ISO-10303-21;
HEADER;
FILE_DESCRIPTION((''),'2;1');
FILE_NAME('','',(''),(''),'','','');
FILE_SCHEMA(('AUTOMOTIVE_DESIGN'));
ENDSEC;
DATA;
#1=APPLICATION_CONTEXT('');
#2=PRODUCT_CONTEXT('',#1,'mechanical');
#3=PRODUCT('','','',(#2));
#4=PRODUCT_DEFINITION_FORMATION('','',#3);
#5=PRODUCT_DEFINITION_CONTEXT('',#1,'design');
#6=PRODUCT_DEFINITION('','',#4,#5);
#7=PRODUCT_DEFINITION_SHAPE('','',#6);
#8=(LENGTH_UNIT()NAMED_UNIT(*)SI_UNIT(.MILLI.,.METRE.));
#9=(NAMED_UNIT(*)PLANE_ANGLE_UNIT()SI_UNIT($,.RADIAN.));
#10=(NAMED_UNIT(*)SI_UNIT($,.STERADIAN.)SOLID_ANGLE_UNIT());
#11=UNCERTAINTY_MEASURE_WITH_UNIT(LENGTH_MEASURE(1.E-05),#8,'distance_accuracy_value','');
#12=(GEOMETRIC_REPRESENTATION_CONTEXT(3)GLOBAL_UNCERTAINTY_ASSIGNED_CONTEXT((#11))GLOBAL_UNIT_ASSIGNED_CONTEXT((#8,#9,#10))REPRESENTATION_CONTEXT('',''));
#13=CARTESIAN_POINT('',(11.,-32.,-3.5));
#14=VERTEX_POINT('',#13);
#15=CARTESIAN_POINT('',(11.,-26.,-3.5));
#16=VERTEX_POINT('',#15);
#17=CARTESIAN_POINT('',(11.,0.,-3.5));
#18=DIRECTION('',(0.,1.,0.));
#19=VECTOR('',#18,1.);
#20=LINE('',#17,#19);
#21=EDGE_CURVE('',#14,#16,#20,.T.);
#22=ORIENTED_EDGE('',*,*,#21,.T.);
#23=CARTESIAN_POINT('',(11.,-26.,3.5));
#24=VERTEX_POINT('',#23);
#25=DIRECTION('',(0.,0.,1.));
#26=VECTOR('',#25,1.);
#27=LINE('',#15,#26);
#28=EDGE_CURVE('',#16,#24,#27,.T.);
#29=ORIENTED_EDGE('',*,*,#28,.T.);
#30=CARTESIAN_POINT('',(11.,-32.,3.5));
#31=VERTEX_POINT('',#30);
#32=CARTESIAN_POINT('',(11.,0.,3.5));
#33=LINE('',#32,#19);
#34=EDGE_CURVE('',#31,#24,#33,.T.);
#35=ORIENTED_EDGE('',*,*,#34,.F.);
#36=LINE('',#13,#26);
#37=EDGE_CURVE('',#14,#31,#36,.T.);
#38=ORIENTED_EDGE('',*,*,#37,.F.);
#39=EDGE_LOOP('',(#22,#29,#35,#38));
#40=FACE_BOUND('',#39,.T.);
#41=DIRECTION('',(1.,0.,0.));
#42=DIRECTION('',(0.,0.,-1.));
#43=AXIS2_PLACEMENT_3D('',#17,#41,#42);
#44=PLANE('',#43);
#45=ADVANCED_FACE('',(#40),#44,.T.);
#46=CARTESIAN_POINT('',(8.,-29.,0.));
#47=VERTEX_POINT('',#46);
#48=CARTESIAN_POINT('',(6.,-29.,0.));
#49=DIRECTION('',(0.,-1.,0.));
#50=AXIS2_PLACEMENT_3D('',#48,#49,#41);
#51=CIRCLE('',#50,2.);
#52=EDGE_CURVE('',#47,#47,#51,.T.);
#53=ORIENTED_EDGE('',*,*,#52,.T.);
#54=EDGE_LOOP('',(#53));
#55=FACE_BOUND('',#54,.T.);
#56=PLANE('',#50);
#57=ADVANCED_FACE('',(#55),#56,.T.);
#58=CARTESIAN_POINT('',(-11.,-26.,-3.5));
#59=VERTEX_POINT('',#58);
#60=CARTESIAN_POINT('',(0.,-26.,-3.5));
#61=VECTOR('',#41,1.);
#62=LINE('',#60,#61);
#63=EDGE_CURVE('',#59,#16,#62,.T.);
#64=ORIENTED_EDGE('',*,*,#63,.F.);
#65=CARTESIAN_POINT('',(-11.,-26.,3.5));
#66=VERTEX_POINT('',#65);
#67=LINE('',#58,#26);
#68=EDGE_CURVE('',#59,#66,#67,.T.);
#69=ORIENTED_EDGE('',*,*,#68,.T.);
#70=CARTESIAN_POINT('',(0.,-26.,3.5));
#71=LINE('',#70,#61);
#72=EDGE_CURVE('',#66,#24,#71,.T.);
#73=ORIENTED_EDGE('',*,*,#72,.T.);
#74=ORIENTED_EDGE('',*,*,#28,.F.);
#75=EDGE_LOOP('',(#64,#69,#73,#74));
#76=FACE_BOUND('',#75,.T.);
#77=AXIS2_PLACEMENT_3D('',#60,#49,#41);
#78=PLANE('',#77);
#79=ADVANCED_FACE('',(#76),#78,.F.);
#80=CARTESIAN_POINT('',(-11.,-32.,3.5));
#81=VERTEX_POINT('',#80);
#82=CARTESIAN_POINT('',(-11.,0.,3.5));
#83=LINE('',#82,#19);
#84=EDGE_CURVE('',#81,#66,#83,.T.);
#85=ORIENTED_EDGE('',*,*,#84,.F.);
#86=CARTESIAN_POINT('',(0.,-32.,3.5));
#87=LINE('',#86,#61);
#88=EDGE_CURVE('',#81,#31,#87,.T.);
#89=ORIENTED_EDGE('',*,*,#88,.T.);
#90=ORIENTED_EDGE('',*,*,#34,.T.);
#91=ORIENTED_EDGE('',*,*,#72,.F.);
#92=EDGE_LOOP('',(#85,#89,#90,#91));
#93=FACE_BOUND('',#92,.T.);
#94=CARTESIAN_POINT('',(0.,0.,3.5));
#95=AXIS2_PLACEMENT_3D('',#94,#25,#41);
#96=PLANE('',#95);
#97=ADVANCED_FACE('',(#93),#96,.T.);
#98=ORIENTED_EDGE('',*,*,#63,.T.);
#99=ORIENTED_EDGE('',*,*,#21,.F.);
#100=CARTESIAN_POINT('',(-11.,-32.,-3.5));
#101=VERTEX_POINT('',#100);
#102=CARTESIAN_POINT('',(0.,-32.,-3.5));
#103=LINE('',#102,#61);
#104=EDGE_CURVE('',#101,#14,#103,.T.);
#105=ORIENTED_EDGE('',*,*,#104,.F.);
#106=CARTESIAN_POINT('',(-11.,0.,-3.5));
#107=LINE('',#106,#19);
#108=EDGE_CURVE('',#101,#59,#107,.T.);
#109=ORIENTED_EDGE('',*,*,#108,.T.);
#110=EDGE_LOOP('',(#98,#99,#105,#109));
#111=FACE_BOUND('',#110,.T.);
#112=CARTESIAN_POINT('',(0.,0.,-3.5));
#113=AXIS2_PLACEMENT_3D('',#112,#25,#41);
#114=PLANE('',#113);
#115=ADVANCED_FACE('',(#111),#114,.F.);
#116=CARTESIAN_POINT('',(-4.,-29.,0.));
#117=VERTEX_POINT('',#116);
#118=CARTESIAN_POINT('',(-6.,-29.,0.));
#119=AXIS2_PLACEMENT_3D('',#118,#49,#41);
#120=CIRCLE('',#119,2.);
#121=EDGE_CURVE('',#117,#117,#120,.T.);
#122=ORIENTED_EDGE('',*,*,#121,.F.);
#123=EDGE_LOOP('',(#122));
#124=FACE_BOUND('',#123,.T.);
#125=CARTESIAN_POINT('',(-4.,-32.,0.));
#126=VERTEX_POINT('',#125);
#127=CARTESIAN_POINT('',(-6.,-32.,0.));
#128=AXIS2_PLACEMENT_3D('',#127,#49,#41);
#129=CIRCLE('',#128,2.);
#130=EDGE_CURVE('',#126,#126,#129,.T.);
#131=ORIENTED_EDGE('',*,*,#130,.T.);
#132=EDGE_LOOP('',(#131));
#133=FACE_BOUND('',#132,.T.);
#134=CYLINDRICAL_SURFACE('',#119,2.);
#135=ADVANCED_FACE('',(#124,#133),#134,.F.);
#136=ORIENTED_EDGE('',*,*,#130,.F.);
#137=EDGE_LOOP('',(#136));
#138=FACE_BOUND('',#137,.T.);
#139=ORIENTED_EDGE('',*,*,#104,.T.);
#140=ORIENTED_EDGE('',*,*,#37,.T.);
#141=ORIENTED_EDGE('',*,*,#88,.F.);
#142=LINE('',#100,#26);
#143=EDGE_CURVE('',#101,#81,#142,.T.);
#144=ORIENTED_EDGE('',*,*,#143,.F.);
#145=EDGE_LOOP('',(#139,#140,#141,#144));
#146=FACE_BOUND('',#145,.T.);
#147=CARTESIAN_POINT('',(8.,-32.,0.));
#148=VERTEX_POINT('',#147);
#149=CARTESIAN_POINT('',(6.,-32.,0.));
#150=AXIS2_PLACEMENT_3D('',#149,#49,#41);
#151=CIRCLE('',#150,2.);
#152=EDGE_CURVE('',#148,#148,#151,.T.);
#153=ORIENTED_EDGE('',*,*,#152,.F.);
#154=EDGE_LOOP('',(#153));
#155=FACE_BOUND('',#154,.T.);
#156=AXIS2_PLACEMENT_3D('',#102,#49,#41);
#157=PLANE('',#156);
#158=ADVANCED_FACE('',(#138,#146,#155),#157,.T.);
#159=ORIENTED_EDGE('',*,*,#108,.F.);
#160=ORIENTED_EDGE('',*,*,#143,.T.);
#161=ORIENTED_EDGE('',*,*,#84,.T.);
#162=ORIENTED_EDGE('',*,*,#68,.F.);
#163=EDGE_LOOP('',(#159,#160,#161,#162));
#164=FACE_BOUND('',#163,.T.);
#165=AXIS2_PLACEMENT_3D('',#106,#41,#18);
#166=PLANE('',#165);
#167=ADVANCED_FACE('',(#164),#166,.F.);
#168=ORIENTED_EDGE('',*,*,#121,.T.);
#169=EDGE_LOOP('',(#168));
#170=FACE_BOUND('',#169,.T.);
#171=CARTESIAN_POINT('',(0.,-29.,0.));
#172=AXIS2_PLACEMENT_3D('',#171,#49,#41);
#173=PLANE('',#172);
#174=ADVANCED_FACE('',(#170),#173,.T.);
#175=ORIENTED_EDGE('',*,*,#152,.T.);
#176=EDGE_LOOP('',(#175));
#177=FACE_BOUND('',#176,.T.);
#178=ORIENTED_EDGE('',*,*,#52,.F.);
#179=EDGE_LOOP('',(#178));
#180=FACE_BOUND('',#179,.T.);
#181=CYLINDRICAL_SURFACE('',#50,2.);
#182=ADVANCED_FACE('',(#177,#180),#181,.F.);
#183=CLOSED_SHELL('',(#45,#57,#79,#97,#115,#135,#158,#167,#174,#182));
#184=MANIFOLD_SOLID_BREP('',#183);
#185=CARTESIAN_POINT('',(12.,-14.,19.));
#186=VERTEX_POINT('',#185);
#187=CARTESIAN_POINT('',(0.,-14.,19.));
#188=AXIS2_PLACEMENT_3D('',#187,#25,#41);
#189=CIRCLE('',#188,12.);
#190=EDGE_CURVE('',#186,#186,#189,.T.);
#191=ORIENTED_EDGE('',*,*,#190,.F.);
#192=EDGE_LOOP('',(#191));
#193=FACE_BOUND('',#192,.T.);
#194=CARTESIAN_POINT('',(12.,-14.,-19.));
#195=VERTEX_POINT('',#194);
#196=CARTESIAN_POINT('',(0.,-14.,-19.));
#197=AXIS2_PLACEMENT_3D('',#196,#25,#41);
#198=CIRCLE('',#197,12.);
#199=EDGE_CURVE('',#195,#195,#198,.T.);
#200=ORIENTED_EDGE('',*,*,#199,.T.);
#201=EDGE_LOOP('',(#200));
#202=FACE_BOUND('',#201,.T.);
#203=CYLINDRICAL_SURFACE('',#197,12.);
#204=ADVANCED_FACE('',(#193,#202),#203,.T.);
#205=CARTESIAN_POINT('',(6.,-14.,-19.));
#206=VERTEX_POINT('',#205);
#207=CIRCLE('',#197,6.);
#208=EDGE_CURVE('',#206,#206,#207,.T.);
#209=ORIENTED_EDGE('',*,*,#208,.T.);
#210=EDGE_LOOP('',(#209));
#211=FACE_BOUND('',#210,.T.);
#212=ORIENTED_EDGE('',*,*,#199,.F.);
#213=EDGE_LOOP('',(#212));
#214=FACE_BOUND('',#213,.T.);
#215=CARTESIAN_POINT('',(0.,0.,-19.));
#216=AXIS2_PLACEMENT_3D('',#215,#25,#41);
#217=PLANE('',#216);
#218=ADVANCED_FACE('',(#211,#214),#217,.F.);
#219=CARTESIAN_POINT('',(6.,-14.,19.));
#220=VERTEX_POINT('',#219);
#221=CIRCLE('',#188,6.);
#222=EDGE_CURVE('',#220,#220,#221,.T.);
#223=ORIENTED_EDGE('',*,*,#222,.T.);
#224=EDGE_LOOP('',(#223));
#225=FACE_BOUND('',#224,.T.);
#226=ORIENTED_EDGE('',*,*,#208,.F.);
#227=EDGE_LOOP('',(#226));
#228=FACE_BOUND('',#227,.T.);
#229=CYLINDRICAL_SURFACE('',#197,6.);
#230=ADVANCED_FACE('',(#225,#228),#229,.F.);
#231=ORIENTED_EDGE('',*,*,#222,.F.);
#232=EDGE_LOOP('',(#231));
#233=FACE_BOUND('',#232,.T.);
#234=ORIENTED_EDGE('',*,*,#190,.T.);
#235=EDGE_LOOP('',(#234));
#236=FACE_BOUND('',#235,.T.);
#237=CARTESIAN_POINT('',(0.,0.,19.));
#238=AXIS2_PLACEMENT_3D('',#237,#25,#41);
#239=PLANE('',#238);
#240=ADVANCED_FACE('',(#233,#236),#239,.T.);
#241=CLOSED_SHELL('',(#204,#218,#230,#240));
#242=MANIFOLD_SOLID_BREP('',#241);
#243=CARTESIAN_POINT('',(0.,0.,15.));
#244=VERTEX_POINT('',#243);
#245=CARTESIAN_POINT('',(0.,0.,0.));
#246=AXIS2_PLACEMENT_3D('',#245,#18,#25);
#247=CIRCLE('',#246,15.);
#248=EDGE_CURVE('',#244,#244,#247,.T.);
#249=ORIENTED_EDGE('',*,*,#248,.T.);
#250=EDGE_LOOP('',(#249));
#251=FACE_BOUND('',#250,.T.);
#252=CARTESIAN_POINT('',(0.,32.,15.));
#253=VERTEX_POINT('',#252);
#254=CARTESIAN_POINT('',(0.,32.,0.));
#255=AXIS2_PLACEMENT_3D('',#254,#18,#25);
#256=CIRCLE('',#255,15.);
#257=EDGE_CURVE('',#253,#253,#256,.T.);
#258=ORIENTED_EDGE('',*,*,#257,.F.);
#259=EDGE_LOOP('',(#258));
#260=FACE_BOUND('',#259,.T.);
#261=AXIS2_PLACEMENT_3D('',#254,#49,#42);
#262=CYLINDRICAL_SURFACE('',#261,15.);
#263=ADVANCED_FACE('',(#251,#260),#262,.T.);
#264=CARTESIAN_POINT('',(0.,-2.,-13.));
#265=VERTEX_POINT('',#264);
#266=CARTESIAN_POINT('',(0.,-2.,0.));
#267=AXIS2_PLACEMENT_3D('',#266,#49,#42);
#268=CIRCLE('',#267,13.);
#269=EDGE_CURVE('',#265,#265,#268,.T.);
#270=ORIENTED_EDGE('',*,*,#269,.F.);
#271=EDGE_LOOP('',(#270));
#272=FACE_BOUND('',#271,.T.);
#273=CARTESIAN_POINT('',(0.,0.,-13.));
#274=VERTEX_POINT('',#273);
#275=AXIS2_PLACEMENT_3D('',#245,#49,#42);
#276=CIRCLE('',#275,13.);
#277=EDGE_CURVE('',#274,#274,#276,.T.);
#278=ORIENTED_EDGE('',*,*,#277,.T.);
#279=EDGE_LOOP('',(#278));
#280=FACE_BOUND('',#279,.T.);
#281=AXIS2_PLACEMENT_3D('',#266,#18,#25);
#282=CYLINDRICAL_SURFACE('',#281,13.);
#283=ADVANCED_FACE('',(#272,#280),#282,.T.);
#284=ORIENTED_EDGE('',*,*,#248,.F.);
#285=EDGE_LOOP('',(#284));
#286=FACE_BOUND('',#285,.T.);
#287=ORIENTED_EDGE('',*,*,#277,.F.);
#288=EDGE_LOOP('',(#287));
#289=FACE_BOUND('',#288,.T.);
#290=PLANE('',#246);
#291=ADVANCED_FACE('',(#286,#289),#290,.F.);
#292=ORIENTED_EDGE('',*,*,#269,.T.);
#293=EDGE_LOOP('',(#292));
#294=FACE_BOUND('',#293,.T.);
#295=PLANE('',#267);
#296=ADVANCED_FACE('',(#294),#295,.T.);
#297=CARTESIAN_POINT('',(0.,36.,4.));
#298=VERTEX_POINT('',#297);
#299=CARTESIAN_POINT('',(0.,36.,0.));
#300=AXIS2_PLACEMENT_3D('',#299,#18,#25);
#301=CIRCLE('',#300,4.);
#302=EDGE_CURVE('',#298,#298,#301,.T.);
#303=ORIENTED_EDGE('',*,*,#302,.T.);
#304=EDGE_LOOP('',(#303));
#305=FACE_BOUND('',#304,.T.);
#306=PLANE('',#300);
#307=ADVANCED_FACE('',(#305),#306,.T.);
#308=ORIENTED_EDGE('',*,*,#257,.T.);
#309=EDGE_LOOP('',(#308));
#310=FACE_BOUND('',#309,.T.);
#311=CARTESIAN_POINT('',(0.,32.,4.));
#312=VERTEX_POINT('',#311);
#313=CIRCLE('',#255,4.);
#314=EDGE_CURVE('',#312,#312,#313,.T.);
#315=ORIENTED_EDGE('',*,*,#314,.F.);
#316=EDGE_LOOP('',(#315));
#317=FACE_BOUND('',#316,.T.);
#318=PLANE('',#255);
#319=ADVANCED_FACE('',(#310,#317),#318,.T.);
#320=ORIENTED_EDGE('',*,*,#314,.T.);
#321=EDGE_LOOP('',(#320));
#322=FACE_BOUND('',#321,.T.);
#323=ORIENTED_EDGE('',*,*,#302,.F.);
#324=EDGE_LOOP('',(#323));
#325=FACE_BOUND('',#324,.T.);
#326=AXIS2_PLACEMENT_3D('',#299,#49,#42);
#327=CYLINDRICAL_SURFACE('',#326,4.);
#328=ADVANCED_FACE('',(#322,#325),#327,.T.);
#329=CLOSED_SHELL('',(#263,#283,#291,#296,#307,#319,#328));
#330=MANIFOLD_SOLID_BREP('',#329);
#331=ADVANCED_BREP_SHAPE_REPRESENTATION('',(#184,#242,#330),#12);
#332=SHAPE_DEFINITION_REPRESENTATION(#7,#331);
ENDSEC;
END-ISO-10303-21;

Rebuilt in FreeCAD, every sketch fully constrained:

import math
import FreeCAD as App
import Part
import Sketcher

V = App.Vector

doc = App.newDocument("Part")
params = doc.addObject("Spreadsheet::Sheet", "Params")
for row, (alias, value) in enumerate([
    ("sketch1_diameter", "30 mm"),
    ("pad1_length", "32 mm"),
    ("sketch2_diameter", "8 mm"),
    ("pad2_length", "4 mm"),
    ("sketch3_diameter", "26 mm"),
    ("pad3_length", "2 mm"),
    ("sketch4_diameter", "24 mm"),
    ("pad4_length", "19 mm"),
    ("pad4_length2", "19 mm"),
    ("sketch5_radius", "6 mm"),
    ("sketch6_diameter", "12 mm"),
    ("sketch7_width", "22 mm"),
    ("sketch7_height", "6 mm"),
    ("pad5_length", "3.5 mm"),
    ("pad5_length2", "3.5 mm"),
    ("sketch8_diameter", "4 mm"),
    ("pocket3_length", "3 mm"),
    ("sketch9_diameter", "4 mm"),
    ("pocket4_length", "3 mm"),
], start=1):
    params.set(f"A{row}", alias)
    params.set(f"B{row}", "=" + value)
    params.setAlias(f"B{row}", alias)

body = doc.addObject("PartDesign::Body", "Body")

sketch1 = body.newObject("Sketcher::SketchObject", "Sketch")
sketch1.AttachmentSupport = (doc.getObject("XZ_Plane"), [""])
sketch1.MapMode = "FlatFace"
sketch1.addGeometry(Part.Circle(V(0, 0, 0), V(0, 0, 1), 15), False)
sketch1.addConstraint([
    Sketcher.Constraint("Coincident", 0, 3, -1, 1),
    Sketcher.Constraint("Diameter", 0, 30.0),
])
sketch1.setExpression("Constraints[1]", "Params.sketch1_diameter")
pad1 = body.newObject("PartDesign::Pad", "Pad")
pad1.Profile = sketch1
pad1.setExpression("Length", "Params.pad1_length")
pad1.Reversed = True

sketch2 = body.newObject("Sketcher::SketchObject", "Sketch001")
sketch2.AttachmentSupport = (doc.getObject("XZ_Plane"), [""])
sketch2.MapMode = "FlatFace"
sketch2.AttachmentOffset = App.Placement(V(0, 0, -32), App.Rotation())
sketch2.addGeometry(Part.Circle(V(0, 0, 0), V(0, 0, 1), 4), False)
sketch2.addConstraint([
    Sketcher.Constraint("Coincident", 0, 3, -1, 1),
    Sketcher.Constraint("Diameter", 0, 8.0),
])
sketch2.setExpression("Constraints[1]", "Params.sketch2_diameter")
pad2 = body.newObject("PartDesign::Pad", "Pad001")
pad2.Profile = sketch2
pad2.setExpression("Length", "Params.pad2_length")
pad2.Reversed = True

sketch3 = body.newObject("Sketcher::SketchObject", "Sketch002")
sketch3.AttachmentSupport = (doc.getObject("XZ_Plane"), [""])
sketch3.MapMode = "FlatFace"
sketch3.addGeometry(Part.Circle(V(0, 0, 0), V(0, 0, 1), 13), False)
sketch3.addConstraint([
    Sketcher.Constraint("Coincident", 0, 3, -1, 1),
    Sketcher.Constraint("Diameter", 0, 26.0),
])
sketch3.setExpression("Constraints[1]", "Params.sketch3_diameter")
pad3 = body.newObject("PartDesign::Pad", "Pad002")
pad3.Profile = sketch3
pad3.setExpression("Length", "Params.pad3_length")
body2 = doc.addObject("PartDesign::Body", "Body001")

sketch4 = body2.newObject("Sketcher::SketchObject", "Sketch003")
sketch4.AttachmentSupport = (doc.getObject("XY_Plane001"), [""])
sketch4.MapMode = "FlatFace"
sketch4.addGeometry(Part.Circle(V(0, -14, 0), V(0, 0, 1), 12), False)
sketch4.addConstraint([
    Sketcher.Constraint("PointOnObject", 0, 3, -2),
    Sketcher.Constraint("Diameter", 0, 24.0),
    Sketcher.Constraint("DistanceY", 0, 3, -1, 1, 14.0),
])
sketch4.setExpression("Constraints[1]", "Params.sketch4_diameter")
pad4 = body2.newObject("PartDesign::Pad", "Pad003")
pad4.Profile = sketch4
pad4.Type = "TwoLengths"
pad4.setExpression("Length", "Params.pad4_length")
pad4.setExpression("Length2", "Params.pad4_length2")

sketch5 = body2.newObject("Sketcher::SketchObject", "Sketch004")
sketch5.AttachmentSupport = (doc.getObject("XY_Plane001"), [""])
sketch5.MapMode = "FlatFace"
sketch5.addGeometry([
    Part.ArcOfCircle(Part.Circle(V(0, -14, 0), V(0, 0, 1), 6), math.radians(90), math.radians(180)),
    Part.ArcOfCircle(Part.Circle(V(0, -14, 0), V(0, 0, 1), 6), math.radians(180), math.radians(270)),
    Part.ArcOfCircle(Part.Circle(V(0, -14, 0), V(0, 0, 1), 6), math.radians(-90), math.radians(0)),
    Part.ArcOfCircle(Part.Circle(V(0, -14, 0), V(0, 0, 1), 6), math.radians(0), math.radians(90)),
], False)
sketch5.addConstraint([
    Sketcher.Constraint("Tangent", 0, 2, 1, 1),
    Sketcher.Constraint("Tangent", 1, 2, 2, 1),
    Sketcher.Constraint("Tangent", 2, 2, 3, 1),
    Sketcher.Constraint("Tangent", 3, 2, 0, 1),
    Sketcher.Constraint("Equal", 0, 1),
    Sketcher.Constraint("Symmetric", 0, 2, 2, 2, -2),
    Sketcher.Constraint("PointOnObject", 1, 2, -2),
    Sketcher.Constraint("PointOnObject", 3, 2, -2),
    Sketcher.Constraint("Horizontal", 3, 3, 0, 2),
    Sketcher.Constraint("Radius", 0, 6.0),
    Sketcher.Constraint("DistanceY", 0, 3, -1, 1, 14.0),
])
sketch5.setExpression("Constraints[9]", "Params.sketch5_radius")
pocket1 = body2.newObject("PartDesign::Pocket", "Pocket")
pocket1.Profile = sketch5
pocket1.Type = "ThroughAll"

sketch6 = body2.newObject("Sketcher::SketchObject", "Sketch005")
sketch6.AttachmentSupport = (doc.getObject("XY_Plane001"), [""])
sketch6.MapMode = "FlatFace"
sketch6.AttachmentOffset = App.Placement(V(0, 0, 19), App.Rotation())
sketch6.addGeometry(Part.Circle(V(0, -14, 0), V(0, 0, 1), 6), False)
sketch6.addConstraint([
    Sketcher.Constraint("PointOnObject", 0, 3, -2),
    Sketcher.Constraint("Diameter", 0, 12.0),
    Sketcher.Constraint("DistanceY", 0, 3, -1, 1, 14.0),
])
sketch6.setExpression("Constraints[1]", "Params.sketch6_diameter")
pocket2 = body2.newObject("PartDesign::Pocket", "Pocket001")
pocket2.Profile = sketch6
pocket2.Type = "ThroughAll"
body3 = doc.addObject("PartDesign::Body", "Body002")

sketch7 = body3.newObject("Sketcher::SketchObject", "Sketch006")
sketch7.AttachmentSupport = (doc.getObject("XY_Plane002"), [""])
sketch7.MapMode = "FlatFace"
sketch7.addGeometry([
    Part.LineSegment(V(11, -32, 0), V(11, -26, 0)),
    Part.LineSegment(V(11, -26, 0), V(-11, -26, 0)),
    Part.LineSegment(V(-11, -26, 0), V(-11, -32, 0)),
    Part.LineSegment(V(-11, -32, 0), V(11, -32, 0)),
], False)
sketch7.addConstraint([
    Sketcher.Constraint("Coincident", 0, 2, 1, 1),
    Sketcher.Constraint("Coincident", 1, 2, 2, 1),
    Sketcher.Constraint("Coincident", 2, 2, 3, 1),
    Sketcher.Constraint("Coincident", 3, 2, 0, 1),
    Sketcher.Constraint("Vertical", 0),
    Sketcher.Constraint("Horizontal", 1),
    Sketcher.Constraint("Vertical", 2),
    Sketcher.Constraint("Horizontal", 3),
    Sketcher.Constraint("DistanceX", 1, 2, 1, 1, 22.0),
    Sketcher.Constraint("DistanceY", 0, 1, 0, 2, 6.0),
    Sketcher.Constraint("DistanceX", -1, 1, 0, 2, 11.0),
    Sketcher.Constraint("DistanceY", 0, 2, -1, 1, 26.0),
])
sketch7.setExpression("Constraints[8]", "Params.sketch7_width")
sketch7.setExpression("Constraints[9]", "Params.sketch7_height")
pad5 = body3.newObject("PartDesign::Pad", "Pad004")
pad5.Profile = sketch7
pad5.Type = "TwoLengths"
pad5.setExpression("Length", "Params.pad5_length")
pad5.setExpression("Length2", "Params.pad5_length2")

sketch8 = body3.newObject("Sketcher::SketchObject", "Sketch007")
sketch8.AttachmentSupport = (doc.getObject("XZ_Plane002"), [""])
sketch8.MapMode = "FlatFace"
sketch8.AttachmentOffset = App.Placement(V(0, 0, 32), App.Rotation())
sketch8.addGeometry(Part.Circle(V(6, 0, 0), V(0, 0, 1), 2), False)
sketch8.addConstraint([
    Sketcher.Constraint("PointOnObject", 0, 3, -1),
    Sketcher.Constraint("Diameter", 0, 4.0),
    Sketcher.Constraint("DistanceX", -1, 1, 0, 3, 6.0),
])
sketch8.setExpression("Constraints[1]", "Params.sketch8_diameter")
pocket3 = body3.newObject("PartDesign::Pocket", "Pocket002")
pocket3.Profile = sketch8
pocket3.setExpression("Length", "Params.pocket3_length")

sketch9 = body3.newObject("Sketcher::SketchObject", "Sketch008")
sketch9.AttachmentSupport = (doc.getObject("XZ_Plane002"), [""])
sketch9.MapMode = "FlatFace"
sketch9.AttachmentOffset = App.Placement(V(0, 0, 32), App.Rotation())
sketch9.addGeometry(Part.Circle(V(-6, 0, 0), V(0, 0, 1), 2), False)
sketch9.addConstraint([
    Sketcher.Constraint("PointOnObject", 0, 3, -1),
    Sketcher.Constraint("Diameter", 0, 4.0),
    Sketcher.Constraint("DistanceX", 0, 3, -1, 1, 6.0),
])
sketch9.setExpression("Constraints[1]", "Params.sketch9_diameter")
pocket4 = body3.newObject("PartDesign::Pocket", "Pocket003")
pocket4.Profile = sketch9
pocket4.setExpression("Length", "Params.pocket4_length")

doc.recompute()
